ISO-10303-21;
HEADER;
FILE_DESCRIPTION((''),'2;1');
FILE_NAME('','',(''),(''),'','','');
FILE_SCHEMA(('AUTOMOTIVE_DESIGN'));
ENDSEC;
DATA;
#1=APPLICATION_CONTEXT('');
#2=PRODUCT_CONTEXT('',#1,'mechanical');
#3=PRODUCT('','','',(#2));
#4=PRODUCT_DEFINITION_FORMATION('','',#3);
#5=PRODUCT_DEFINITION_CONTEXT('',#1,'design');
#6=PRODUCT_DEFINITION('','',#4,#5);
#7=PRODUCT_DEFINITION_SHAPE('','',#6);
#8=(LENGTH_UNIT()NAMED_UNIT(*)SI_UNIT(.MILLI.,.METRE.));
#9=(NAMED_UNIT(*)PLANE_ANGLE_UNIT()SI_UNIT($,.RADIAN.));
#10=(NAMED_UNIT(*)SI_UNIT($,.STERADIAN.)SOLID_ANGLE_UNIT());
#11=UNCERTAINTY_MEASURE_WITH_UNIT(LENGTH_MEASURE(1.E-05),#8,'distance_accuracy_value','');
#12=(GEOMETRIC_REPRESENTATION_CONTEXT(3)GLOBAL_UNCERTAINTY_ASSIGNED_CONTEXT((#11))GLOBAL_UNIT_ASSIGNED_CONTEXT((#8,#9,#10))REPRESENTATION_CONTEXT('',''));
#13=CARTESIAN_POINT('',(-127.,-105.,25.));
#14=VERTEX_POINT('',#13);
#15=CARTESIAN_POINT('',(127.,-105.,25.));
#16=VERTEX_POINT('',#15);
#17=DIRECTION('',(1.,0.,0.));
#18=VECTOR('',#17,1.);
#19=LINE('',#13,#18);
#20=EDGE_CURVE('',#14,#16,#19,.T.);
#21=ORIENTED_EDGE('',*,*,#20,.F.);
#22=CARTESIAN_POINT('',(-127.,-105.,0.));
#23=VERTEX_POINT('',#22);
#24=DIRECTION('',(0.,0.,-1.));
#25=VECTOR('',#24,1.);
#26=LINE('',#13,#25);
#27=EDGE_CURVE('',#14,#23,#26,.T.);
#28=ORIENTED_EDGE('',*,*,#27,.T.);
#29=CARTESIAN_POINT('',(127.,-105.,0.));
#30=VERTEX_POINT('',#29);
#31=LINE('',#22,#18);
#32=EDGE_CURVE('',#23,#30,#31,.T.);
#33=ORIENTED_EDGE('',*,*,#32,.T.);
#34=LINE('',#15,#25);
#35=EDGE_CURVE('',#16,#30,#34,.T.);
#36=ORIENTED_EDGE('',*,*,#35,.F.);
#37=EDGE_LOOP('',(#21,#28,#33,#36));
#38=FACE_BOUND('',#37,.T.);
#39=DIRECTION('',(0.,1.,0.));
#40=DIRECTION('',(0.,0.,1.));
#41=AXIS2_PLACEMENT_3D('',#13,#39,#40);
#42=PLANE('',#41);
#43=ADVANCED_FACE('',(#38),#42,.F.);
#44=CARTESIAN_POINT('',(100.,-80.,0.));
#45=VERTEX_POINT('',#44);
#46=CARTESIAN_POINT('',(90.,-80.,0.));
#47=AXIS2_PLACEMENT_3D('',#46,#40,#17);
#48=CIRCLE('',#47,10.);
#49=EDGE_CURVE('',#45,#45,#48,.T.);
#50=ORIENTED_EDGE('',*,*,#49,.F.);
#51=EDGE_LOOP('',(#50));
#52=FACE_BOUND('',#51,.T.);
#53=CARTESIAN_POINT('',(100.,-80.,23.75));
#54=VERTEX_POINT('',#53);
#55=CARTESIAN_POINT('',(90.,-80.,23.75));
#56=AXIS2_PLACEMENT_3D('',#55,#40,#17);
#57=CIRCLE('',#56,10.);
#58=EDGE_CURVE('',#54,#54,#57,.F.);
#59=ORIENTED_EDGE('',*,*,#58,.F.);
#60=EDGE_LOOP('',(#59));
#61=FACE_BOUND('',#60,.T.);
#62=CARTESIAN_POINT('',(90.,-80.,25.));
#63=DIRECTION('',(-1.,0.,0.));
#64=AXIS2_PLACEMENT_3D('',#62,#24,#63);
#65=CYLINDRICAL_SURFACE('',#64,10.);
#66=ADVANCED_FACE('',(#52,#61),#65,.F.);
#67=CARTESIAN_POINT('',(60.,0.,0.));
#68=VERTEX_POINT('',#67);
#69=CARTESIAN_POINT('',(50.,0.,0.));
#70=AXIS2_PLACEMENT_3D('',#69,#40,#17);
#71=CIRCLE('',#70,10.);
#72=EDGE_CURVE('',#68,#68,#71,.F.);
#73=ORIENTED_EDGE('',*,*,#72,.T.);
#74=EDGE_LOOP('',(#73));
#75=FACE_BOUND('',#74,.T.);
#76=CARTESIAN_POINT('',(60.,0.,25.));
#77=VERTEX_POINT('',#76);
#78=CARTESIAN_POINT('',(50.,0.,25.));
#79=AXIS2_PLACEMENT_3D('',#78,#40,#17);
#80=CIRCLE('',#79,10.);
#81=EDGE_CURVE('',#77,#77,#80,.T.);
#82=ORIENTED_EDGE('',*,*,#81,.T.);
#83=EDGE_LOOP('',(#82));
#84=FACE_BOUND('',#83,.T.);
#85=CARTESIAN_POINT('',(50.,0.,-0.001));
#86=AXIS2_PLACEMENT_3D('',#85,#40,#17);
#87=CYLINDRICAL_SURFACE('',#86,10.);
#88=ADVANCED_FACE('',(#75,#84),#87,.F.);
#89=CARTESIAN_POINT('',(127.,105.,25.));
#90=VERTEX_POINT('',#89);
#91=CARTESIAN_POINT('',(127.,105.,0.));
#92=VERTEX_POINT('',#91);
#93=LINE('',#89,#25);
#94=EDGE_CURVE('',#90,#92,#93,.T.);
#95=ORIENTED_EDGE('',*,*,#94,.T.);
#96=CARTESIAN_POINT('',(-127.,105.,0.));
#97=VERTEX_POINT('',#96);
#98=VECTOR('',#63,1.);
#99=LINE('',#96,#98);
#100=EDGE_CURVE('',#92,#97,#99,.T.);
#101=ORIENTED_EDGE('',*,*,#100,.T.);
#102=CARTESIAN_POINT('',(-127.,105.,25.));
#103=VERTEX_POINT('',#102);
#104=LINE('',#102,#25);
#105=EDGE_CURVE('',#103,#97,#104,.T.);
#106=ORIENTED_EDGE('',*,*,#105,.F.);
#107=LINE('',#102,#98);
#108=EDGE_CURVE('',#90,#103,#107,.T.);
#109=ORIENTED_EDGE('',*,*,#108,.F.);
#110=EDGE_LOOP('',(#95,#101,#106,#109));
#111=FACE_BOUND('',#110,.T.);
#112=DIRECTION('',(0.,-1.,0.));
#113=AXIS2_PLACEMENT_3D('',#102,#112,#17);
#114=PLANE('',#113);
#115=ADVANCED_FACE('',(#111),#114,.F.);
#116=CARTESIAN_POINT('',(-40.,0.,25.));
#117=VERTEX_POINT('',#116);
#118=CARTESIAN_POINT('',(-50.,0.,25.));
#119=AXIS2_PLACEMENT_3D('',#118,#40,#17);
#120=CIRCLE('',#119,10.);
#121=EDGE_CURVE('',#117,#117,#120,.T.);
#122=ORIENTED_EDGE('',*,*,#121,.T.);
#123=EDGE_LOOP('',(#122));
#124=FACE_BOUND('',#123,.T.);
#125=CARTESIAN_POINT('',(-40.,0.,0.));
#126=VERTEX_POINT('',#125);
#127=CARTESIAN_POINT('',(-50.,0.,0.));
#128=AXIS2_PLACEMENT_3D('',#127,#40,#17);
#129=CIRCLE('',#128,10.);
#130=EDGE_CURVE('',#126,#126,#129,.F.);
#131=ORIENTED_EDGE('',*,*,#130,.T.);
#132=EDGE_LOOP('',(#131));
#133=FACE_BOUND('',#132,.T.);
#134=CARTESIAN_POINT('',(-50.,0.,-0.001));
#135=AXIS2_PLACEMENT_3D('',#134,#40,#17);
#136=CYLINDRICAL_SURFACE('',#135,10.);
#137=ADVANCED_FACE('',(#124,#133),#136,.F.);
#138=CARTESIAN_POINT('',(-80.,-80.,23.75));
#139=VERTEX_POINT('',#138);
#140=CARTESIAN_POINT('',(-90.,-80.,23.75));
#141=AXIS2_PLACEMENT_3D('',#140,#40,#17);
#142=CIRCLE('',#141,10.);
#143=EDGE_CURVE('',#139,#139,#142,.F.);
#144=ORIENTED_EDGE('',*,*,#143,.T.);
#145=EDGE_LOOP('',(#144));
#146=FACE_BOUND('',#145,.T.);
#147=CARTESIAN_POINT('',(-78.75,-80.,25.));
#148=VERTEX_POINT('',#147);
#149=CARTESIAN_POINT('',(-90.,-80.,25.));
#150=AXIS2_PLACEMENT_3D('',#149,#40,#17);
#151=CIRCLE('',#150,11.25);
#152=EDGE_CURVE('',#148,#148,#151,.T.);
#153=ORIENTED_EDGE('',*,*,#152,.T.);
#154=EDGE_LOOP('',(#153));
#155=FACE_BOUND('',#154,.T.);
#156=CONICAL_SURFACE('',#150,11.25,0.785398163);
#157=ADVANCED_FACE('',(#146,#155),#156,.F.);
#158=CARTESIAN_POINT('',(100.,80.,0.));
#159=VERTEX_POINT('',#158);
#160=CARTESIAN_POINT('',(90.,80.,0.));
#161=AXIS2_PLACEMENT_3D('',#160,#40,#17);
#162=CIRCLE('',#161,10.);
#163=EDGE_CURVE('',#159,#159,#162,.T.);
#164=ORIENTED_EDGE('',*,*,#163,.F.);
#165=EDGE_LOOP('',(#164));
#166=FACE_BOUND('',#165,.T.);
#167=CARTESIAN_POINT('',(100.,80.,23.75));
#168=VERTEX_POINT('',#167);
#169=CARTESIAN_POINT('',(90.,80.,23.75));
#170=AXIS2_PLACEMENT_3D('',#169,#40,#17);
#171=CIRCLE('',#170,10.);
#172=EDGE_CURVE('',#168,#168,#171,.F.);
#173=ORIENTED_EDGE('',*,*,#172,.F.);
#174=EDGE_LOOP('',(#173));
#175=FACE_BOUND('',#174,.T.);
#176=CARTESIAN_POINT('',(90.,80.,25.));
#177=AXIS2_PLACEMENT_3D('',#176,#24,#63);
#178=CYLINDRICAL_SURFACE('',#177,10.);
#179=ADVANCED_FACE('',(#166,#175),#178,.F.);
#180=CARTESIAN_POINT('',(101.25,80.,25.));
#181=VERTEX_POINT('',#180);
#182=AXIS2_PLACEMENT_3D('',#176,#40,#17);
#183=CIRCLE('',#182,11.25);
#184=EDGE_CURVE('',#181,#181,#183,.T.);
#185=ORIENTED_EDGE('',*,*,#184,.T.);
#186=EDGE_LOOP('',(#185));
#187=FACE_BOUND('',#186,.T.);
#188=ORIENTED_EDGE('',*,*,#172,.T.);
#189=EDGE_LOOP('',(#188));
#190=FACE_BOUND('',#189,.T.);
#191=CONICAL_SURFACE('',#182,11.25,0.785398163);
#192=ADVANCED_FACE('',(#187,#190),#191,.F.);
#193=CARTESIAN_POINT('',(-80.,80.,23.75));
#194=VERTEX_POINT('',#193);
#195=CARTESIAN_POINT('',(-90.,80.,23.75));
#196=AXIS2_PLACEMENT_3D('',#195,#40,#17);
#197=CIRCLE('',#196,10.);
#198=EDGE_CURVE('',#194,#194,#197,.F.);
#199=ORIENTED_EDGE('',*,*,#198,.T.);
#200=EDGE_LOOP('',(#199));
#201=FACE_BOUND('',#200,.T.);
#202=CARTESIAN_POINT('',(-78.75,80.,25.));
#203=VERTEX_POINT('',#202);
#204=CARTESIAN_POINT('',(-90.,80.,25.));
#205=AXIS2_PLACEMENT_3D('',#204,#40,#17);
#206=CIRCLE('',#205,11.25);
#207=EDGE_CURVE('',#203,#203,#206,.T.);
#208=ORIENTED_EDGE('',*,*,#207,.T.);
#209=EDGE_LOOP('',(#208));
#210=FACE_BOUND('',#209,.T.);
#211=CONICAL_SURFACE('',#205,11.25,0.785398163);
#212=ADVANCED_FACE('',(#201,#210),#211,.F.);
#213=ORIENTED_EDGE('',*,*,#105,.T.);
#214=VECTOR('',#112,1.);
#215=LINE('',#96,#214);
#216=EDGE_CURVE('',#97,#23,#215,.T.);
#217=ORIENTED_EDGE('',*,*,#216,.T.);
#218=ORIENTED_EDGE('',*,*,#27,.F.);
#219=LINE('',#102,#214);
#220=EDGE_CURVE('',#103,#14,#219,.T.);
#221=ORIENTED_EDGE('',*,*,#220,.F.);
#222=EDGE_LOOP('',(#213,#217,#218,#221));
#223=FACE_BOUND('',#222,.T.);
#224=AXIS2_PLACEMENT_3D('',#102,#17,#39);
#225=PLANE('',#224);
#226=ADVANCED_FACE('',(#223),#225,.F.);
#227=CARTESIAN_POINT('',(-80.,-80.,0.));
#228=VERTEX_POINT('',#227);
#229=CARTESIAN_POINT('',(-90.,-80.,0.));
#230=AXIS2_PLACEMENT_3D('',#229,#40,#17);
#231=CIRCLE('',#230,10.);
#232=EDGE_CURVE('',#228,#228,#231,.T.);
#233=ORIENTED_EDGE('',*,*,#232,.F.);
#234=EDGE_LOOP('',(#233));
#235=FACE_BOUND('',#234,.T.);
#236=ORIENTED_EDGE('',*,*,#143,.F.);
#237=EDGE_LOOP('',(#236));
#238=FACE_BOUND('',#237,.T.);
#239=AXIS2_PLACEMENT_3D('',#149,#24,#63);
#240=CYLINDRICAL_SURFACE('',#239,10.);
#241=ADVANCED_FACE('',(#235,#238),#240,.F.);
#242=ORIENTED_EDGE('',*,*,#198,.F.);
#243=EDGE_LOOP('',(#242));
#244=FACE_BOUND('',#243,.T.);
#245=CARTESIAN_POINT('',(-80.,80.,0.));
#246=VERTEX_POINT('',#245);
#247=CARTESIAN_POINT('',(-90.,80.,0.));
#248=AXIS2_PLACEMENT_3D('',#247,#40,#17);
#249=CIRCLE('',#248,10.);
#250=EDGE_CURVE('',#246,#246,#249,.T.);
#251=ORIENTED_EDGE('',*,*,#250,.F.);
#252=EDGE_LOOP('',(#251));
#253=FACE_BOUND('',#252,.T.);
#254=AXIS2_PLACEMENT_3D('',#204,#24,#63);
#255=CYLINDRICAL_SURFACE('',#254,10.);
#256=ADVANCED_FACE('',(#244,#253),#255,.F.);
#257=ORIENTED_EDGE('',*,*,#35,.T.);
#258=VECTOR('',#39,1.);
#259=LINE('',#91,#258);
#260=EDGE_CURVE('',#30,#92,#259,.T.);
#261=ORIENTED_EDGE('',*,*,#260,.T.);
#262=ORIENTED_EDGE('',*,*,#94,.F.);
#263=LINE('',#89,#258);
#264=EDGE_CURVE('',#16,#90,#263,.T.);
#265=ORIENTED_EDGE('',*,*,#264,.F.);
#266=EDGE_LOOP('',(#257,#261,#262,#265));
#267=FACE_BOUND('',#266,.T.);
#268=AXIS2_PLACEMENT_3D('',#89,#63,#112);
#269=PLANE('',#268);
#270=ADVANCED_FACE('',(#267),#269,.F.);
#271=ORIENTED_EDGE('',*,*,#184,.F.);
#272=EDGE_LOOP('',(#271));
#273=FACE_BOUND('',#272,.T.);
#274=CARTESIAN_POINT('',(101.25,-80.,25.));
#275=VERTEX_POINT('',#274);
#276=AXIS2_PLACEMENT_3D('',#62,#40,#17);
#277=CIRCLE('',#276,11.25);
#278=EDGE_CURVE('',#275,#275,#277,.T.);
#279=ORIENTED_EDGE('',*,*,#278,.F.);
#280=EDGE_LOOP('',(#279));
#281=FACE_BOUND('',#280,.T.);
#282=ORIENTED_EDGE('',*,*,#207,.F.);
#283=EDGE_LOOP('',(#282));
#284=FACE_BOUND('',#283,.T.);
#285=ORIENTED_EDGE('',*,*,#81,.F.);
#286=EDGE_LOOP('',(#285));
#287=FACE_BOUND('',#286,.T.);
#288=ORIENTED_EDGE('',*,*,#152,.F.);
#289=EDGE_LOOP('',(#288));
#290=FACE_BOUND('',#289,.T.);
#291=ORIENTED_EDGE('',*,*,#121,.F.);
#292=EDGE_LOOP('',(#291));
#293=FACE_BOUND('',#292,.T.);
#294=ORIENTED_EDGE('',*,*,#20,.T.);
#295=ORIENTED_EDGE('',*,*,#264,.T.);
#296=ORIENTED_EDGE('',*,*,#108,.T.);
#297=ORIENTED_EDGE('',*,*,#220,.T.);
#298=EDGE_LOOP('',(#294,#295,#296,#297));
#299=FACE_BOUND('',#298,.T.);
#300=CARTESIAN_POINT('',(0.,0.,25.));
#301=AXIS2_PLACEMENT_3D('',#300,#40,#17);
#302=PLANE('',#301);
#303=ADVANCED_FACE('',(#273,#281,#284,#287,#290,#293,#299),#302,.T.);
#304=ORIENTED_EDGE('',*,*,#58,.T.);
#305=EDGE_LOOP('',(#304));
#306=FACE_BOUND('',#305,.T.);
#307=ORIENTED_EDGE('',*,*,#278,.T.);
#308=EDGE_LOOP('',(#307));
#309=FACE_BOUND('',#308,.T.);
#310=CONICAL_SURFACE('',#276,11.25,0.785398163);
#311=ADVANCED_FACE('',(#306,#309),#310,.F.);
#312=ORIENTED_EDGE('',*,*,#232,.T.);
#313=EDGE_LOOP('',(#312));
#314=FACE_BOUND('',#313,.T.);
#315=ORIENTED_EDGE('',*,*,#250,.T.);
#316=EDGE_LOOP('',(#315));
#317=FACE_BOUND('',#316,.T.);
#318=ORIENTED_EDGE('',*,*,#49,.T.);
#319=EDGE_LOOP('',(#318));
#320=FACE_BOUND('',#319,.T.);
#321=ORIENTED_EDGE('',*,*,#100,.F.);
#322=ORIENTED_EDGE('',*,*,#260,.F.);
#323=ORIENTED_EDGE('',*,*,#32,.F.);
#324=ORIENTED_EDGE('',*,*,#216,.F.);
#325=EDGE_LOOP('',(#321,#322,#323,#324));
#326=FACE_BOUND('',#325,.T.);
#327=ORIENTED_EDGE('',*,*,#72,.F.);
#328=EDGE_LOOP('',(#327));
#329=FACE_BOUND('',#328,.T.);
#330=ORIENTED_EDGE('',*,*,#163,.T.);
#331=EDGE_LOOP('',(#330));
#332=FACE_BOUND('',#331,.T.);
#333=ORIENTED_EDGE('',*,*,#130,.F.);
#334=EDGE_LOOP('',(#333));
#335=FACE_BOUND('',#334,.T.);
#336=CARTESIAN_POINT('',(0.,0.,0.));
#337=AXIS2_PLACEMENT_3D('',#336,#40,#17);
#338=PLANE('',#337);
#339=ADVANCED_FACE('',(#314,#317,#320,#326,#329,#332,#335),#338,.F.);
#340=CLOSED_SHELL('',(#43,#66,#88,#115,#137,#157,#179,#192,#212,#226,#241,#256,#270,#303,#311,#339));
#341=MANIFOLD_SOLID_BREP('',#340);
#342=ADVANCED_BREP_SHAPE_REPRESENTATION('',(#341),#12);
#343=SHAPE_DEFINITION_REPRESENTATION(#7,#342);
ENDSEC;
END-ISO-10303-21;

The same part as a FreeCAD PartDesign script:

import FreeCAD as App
import Part
import Sketcher
from FreeCAD import Vector


def add_polygon(sketch, points):
    """Adds a closed chain of lines whose ends are joined by coincident constraints."""
    first, n = sketch.GeometryCount, len(points)
    for a, b in zip(points, points[1:] + points[:1]):
        sketch.addGeometry(Part.LineSegment(App.Vector(*a, 0), App.Vector(*b, 0)), False)
    for i in range(n):
        sketch.addConstraint(Sketcher.Constraint("Coincident", first + i, 2, first + (i + 1) % n, 1))

doc = App.newDocument("Part")
body = doc.addObject("PartDesign::Body", "Body")

sketch1 = doc.addObject("Sketcher::SketchObject", "Sketch")
body.addObject(sketch1)
sketch1.AttachmentSupport = (doc.XY_Plane, [""])
sketch1.MapMode = "FlatFace"
add_polygon(sketch1, [(-127, 105), (-127, -105), (127, -105), (127, 105)])
sketch1.addGeometry(Part.Circle(Vector(-90, -80, 0), Vector(0, 0, 1), 10), False)
sketch1.addGeometry(Part.Circle(Vector(90, -80, 0), Vector(0, 0, 1), 10), False)
sketch1.addGeometry(Part.Circle(Vector(-90, 80, 0), Vector(0, 0, 1), 10), False)
sketch1.addGeometry(Part.Circle(Vector(90, 80, 0), Vector(0, 0, 1), 10), False)
sketch1.addConstraint([
    Sketcher.Constraint("Vertical", 0),
    Sketcher.Constraint("Horizontal", 1),
    Sketcher.Constraint("Vertical", 2),
    Sketcher.Constraint("Horizontal", 3),
    Sketcher.Constraint("Equal", 4, 5),
    Sketcher.Constraint("Equal", 5, 6),
    Sketcher.Constraint("Equal", 6, 7),
    Sketcher.Constraint("Symmetric", 5, 3, 6, 3, -1, 1),
    Sketcher.Constraint("Symmetric", 4, 3, 7, 3, -1, 1),
    Sketcher.Constraint("Symmetric", 0, 2, 2, 2, -1, 1),
    Sketcher.Constraint("Symmetric", 4, 3, 5, 3, -2),
    Sketcher.Constraint("Diameter", 4, 20.0),
    Sketcher.Constraint("DistanceX", 1, 1, 1, 2, 254.0),
    Sketcher.Constraint("DistanceY", 0, 2, 0, 1, 210.0),
    Sketcher.Constraint("DistanceX", 4, 3, -1, 1, 90.0),
    Sketcher.Constraint("DistanceY", 4, 3, -1, 1, 80.0),
])
pad1 = doc.addObject("PartDesign::Pad", "Pad")
body.addObject(pad1)
pad1.Profile = sketch1
pad1.Length = 25

sketch2 = doc.addObject("Sketcher::SketchObject", "Sketch001")
body.addObject(sketch2)
sketch2.AttachmentSupport = (doc.XY_Plane, [""])
sketch2.MapMode = "FlatFace"
sketch2.AttachmentOffset = App.Placement(Vector(0, 0, 25), App.Rotation())
sketch2.addGeometry(Part.Circle(Vector(-50, 0, 0), Vector(0, 0, 1), 10), False)
sketch2.addConstraint([
    Sketcher.Constraint("PointOnObject", 0, 3, -1),
    Sketcher.Constraint("Diameter", 0, 20.0),
    Sketcher.Constraint("DistanceX", 0, 3, -1, 1, 50.0),
])
pocket1 = doc.addObject("PartDesign::Pocket", "Pocket")
body.addObject(pocket1)
pocket1.Profile = sketch2
pocket1.Type = "UpToFirst"

sketch3 = doc.addObject("Sketcher::SketchObject", "Sketch002")
body.addObject(sketch3)
sketch3.AttachmentSupport = (doc.XY_Plane, [""])
sketch3.MapMode = "FlatFace"
sketch3.AttachmentOffset = App.Placement(Vector(0, 0, 25), App.Rotation())
sketch3.addGeometry(Part.Circle(Vector(50, 0, 0), Vector(0, 0, 1), 10), False)
sketch3.addConstraint([
    Sketcher.Constraint("PointOnObject", 0, 3, -1),
    Sketcher.Constraint("Diameter", 0, 20.0),
    Sketcher.Constraint("DistanceX", -1, 1, 0, 3, 50.0),
])
pocket2 = doc.addObject("PartDesign::Pocket", "Pocket001")
body.addObject(pocket2)
pocket2.Profile = sketch3
pocket2.Type = "UpToFirst"

sketch4 = doc.addObject("Sketcher::SketchObject", "Sketch003")
body.addObject(sketch4)
sketch4.AttachmentSupport = (doc.YZ_Plane, [""])
sketch4.MapMode = "FlatFace"
sketch4.AttachmentOffset = App.Placement(Vector(0, 0, -90), App.Rotation())
add_polygon(sketch4, [(80, 25), (69, 25), (80, 14)])
sketch4.addGeometry(Part.LineSegment(Vector(80, 25, 0), Vector(80, 14, 0)), True)
sketch4.addConstraint([
    Sketcher.Constraint("Horizontal", 0),
    Sketcher.Constraint("Vertical", 2),
    Sketcher.Constraint("Vertical", 3),
    Sketcher.Constraint("Coincident", 3, 1, 2, 2),
    Sketcher.Constraint("Equal", 0, 2),
    Sketcher.Constraint("Equal", 2, 3),
    Sketcher.Constraint("DistanceY", -1, 1, 0, 2, 25.0),
    Sketcher.Constraint("DistanceX", -1, 1, 1, 2, 80.0),
    Sketcher.Constraint("DistanceX", 0, 2, 0, 1, 11.25),
])
groove = doc.addObject("PartDesign::Groove", "Groove")
body.addObject(groove)
groove.Profile = sketch4
groove.ReferenceAxis = (sketch4, ["Axis0"])
groove.Angle = 360

sketch5 = doc.addObject("Sketcher::SketchObject", "Sketch004")
body.addObject(sketch5)
sketch5.AttachmentSupport = (doc.YZ_Plane, [""])
sketch5.MapMode = "FlatFace"
sketch5.AttachmentOffset = App.Placement(Vector(0, 0, 90), App.Rotation())
add_polygon(sketch5, [(80, 25), (69, 25), (80, 14)])
sketch5.addGeometry(Part.LineSegment(Vector(80, 25, 0), Vector(80, 14, 0)), True)
sketch5.addConstraint([
    Sketcher.Constraint("Horizontal", 0),
    Sketcher.Constraint("Vertical", 2),
    Sketcher.Constraint("Vertical", 3),
    Sketcher.Constraint("Coincident", 3, 1, 2, 2),
    Sketcher.Constraint("Equal", 0, 2),
    Sketcher.Constraint("Equal", 2, 3),
    Sketcher.Constraint("DistanceY", -1, 1, 0, 2, 25.0),
    Sketcher.Constraint("DistanceX", -1, 1, 1, 2, 80.0),
    Sketcher.Constraint("DistanceX", 0, 2, 0, 1, 11.25),
])
groove2 = doc.addObject("PartDesign::Groove", "Groove001")
body.addObject(groove2)
groove2.Profile = sketch5
groove2.ReferenceAxis = (sketch5, ["Axis0"])
groove2.Angle = 360

sketch6 = doc.addObject("Sketcher::SketchObject", "Sketch005")
body.addObject(sketch6)
sketch6.AttachmentSupport = (doc.YZ_Plane, [""])
sketch6.MapMode = "FlatFace"
sketch6.AttachmentOffset = App.Placement(Vector(0, 0, 90), App.Rotation())
add_polygon(sketch6, [(-80, 25), (-91, 25), (-80, 14)])
sketch6.addGeometry(Part.LineSegment(Vector(-80, 25, 0), Vector(-80, 14, 0)), True)
sketch6.addConstraint([
    Sketcher.Constraint("Horizontal", 0),
    Sketcher.Constraint("Vertical", 2),
    Sketcher.Constraint("Vertical", 3),
    Sketcher.Constraint("Coincident", 3, 1, 2, 2),
    Sketcher.Constraint("Equal", 0, 2),
    Sketcher.Constraint("Equal", 2, 3),
    Sketcher.Constraint("DistanceY", -1, 1, 0, 2, 25.0),
    Sketcher.Constraint("DistanceX", 1, 2, -1, 1, 80.0),
    Sketcher.Constraint("DistanceX", 0, 2, 0, 1, 11.25),
])
groove3 = doc.addObject("PartDesign::Groove", "Groove002")
body.addObject(groove3)
groove3.Profile = sketch6
groove3.ReferenceAxis = (sketch6, ["Axis0"])
groove3.Angle = 360

sketch7 = doc.addObject("Sketcher::SketchObject", "Sketch006")
body.addObject(sketch7)
sketch7.AttachmentSupport = (doc.YZ_Plane, [""])
sketch7.MapMode = "FlatFace"
sketch7.AttachmentOffset = App.Placement(Vector(0, 0, -90), App.Rotation())
add_polygon(sketch7, [(-80, 25), (-91, 25), (-80, 14)])
sketch7.addGeometry(Part.LineSegment(Vector(-80, 25, 0), Vector(-80, 14, 0)), True)
sketch7.addConstraint([
    Sketcher.Constraint("Horizontal", 0),
    Sketcher.Constraint("Vertical", 2),
    Sketcher.Constraint("Vertical", 3),
    Sketcher.Constraint("Coincident", 3, 1, 2, 2),
    Sketcher.Constraint("Equal", 0, 2),
    Sketcher.Constraint("Equal", 2, 3),
    Sketcher.Constraint("DistanceY", -1, 1, 0, 2, 25.0),
    Sketcher.Constraint("DistanceX", 1, 2, -1, 1, 80.0),
    Sketcher.Constraint("DistanceX", 0, 2, 0, 1, 11.25),
])
groove4 = doc.addObject("PartDesign::Groove", "Groove003")
body.addObject(groove4)
groove4.Profile = sketch7
groove4.ReferenceAxis = (sketch7, ["Axis0"])
groove4.Angle = 360

doc.recompute()
